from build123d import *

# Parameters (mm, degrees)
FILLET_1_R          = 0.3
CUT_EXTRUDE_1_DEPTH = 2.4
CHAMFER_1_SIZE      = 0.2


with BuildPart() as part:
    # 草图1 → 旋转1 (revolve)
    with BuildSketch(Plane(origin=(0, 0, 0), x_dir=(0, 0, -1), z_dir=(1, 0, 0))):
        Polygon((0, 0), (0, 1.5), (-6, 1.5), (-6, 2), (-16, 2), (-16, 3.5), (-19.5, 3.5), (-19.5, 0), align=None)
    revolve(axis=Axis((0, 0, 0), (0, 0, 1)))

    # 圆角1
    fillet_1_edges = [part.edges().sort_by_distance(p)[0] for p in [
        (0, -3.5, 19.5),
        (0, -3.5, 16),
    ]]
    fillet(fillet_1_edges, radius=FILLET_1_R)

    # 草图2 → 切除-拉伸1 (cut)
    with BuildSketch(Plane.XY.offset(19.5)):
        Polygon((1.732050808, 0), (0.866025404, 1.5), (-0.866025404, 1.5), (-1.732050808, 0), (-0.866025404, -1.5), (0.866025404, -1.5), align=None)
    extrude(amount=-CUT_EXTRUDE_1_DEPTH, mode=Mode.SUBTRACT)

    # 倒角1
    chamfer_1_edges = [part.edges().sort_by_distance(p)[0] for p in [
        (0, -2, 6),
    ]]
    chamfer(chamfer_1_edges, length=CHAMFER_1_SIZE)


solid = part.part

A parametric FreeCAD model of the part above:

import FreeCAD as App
import Part
import Sketcher
Q = App.Units.Quantity


def edges_at(feature, points):
    """Names of the edges that pass closest to the given points."""
    edges = feature.Shape.Edges
    near = lambda p: min(range(len(edges)), key=lambda i: edges[i].distToShape(Part.Vertex(*p))[0])
    return sorted({f"Edge{near(p) + 1}" for p in points})

doc = App.newDocument("Part")
body = doc.addObject("PartDesign::Body", "Body")

sketch1 = body.newObject("Sketcher::SketchObject", "Sketch")
sketch1.AttachmentSupport = (doc.getObject("YZ_Plane"), [""])
sketch1.MapMode = "FlatFace"
sketch1.addGeometry([
    Part.LineSegment(App.Vector(0, 0, 0), App.Vector(1.5, 0, 0)),
    Part.LineSegment(App.Vector(1.5, 0, 0), App.Vector(1.5, 6, 0)),
    Part.LineSegment(App.Vector(1.5, 6, 0), App.Vector(2, 6, 0)),
    Part.LineSegment(App.Vector(2, 6, 0), App.Vector(2, 16, 0)),
    Part.LineSegment(App.Vector(2, 16, 0), App.Vector(3.5, 16, 0)),
    Part.LineSegment(App.Vector(3.5, 16, 0), App.Vector(3.5, 19.5, 0)),
    Part.LineSegment(App.Vector(3.5, 19.5, 0), App.Vector(0, 19.5, 0)),
    Part.LineSegment(App.Vector(0, 19.5, 0), App.Vector(0, 0, 0)),
], False)
sketch1.addConstraint([
    Sketcher.Constraint("Coincident", 0, 2, 1, 1),
    Sketcher.Constraint("Coincident", 1, 2, 2, 1),
    Sketcher.Constraint("Coincident", 2, 2, 3, 1),
    Sketcher.Constraint("Coincident", 3, 2, 4, 1),
    Sketcher.Constraint("Coincident", 4, 2, 5, 1),
    Sketcher.Constraint("Coincident", 5, 2, 6, 1),
    Sketcher.Constraint("Coincident", 6, 2, 7, 1),
    Sketcher.Constraint("Coincident", 7, 2, 0, 1),
    Sketcher.Constraint("Horizontal", 0),
    Sketcher.Constraint("Vertical", 1),
    Sketcher.Constraint("Horizontal", 2),
    Sketcher.Constraint("Vertical", 3),
    Sketcher.Constraint("Horizontal", 4),
    Sketcher.Constraint("Vertical", 5),
    Sketcher.Constraint("Horizontal", 6),
    Sketcher.Constraint("Vertical", 7),
    Sketcher.Constraint("Coincident", 7, 2, -1, 1),
    Sketcher.Constraint("Equal", 0, 4),
    Sketcher.Constraint("Equal", 6, 5),
    Sketcher.Constraint("DistanceY", 1, 1, 1, 2, 6.0),
    Sketcher.Constraint("DistanceY", 3, 1, 3, 2, 10.0),
    Sketcher.Constraint("DistanceX", 0, 1, 0, 2, 1.5),
    Sketcher.Constraint("DistanceX", 2, 1, 2, 2, 0.5),
])
revolution = body.newObject("PartDesign::Revolution", "Revolution")
revolution.Profile = sketch1
revolution.ReferenceAxis = (sketch1, ["V_Axis"])
revolution.Angle = 360
doc.recompute()

fillet = body.newObject("PartDesign::Fillet", "Fillet")
fillet.Base = (revolution, edges_at(revolution, [(0, -3.5, 19.5), (0, -3.5, 16)]))
fillet.Radius = 0.3

sketch2 = body.newObject("Sketcher::SketchObject", "Sketch001")
sketch2.AttachmentSupport = (doc.getObject("XY_Plane"), [""])
sketch2.MapMode = "FlatFace"
sketch2.AttachmentOffset = App.Placement(App.Vector(0, 0, 19.5), App.Rotation())
sketch2.addGeometry([
    Part.LineSegment(App.Vector(1.7, 0, 0), App.Vector(0.9, 1.5, 0)),
    Part.LineSegment(App.Vector(0.9, 1.5, 0), App.Vector(-0.9, 1.5, 0)),
    Part.LineSegment(App.Vector(-0.9, 1.5, 0), App.Vector(-1.7, 0, 0)),
    Part.LineSegment(App.Vector(-1.7, 0, 0), App.Vector(-0.9, -1.5, 0)),
    Part.LineSegment(App.Vector(-0.9, -1.5, 0), App.Vector(0.9, -1.5, 0)),
    Part.LineSegment(App.Vector(0.9, -1.5, 0), App.Vector(1.7, 0, 0)),
], False)
sketch2.addConstraint([
    Sketcher.Constraint("Coincident", 0, 2, 1, 1),
    Sketcher.Constraint("Coincident", 1, 2, 2, 1),
    Sketcher.Constraint("Coincident", 2, 2, 3, 1),
    Sketcher.Constraint("Coincident", 3, 2, 4, 1),
    Sketcher.Constraint("Coincident", 4, 2, 5, 1),
    Sketcher.Constraint("Coincident", 5, 2, 0, 1),
    Sketcher.Constraint("Horizontal", 1),
    Sketcher.Constraint("Horizontal", 4),
    Sketcher.Constraint("Symmetric", 0, 2, 3, 2, -1, 1),
    Sketcher.Constraint("Symmetric", 2, 2, 5, 2, -1, 1),
    Sketcher.Constraint("PointOnObject", 2, 2, -1),
    Sketcher.Constraint("Parallel", 2, 5),
    Sketcher.Constraint("Vertical", 1, 2, 3, 2),
    Sketcher.Constraint("Angle", 0, Q("120 deg")),
    Sketcher.Constraint("DistanceY", 3, 2, 1, 2, 3.0),
    Sketcher.Constraint("DistanceX", 1, 2, 1, 1, 1.732051),
])
pocket1 = body.newObject("PartDesign::Pocket", "Pocket")
pocket1.Profile = sketch2
pocket1.Length = 2.4
doc.recompute()

chamfer = body.newObject("PartDesign::Chamfer", "Chamfer")
chamfer.Base = (pocket1, edges_at(pocket1, [(0, -2, 6)]))
chamfer.Size = 0.2

doc.recompute()
